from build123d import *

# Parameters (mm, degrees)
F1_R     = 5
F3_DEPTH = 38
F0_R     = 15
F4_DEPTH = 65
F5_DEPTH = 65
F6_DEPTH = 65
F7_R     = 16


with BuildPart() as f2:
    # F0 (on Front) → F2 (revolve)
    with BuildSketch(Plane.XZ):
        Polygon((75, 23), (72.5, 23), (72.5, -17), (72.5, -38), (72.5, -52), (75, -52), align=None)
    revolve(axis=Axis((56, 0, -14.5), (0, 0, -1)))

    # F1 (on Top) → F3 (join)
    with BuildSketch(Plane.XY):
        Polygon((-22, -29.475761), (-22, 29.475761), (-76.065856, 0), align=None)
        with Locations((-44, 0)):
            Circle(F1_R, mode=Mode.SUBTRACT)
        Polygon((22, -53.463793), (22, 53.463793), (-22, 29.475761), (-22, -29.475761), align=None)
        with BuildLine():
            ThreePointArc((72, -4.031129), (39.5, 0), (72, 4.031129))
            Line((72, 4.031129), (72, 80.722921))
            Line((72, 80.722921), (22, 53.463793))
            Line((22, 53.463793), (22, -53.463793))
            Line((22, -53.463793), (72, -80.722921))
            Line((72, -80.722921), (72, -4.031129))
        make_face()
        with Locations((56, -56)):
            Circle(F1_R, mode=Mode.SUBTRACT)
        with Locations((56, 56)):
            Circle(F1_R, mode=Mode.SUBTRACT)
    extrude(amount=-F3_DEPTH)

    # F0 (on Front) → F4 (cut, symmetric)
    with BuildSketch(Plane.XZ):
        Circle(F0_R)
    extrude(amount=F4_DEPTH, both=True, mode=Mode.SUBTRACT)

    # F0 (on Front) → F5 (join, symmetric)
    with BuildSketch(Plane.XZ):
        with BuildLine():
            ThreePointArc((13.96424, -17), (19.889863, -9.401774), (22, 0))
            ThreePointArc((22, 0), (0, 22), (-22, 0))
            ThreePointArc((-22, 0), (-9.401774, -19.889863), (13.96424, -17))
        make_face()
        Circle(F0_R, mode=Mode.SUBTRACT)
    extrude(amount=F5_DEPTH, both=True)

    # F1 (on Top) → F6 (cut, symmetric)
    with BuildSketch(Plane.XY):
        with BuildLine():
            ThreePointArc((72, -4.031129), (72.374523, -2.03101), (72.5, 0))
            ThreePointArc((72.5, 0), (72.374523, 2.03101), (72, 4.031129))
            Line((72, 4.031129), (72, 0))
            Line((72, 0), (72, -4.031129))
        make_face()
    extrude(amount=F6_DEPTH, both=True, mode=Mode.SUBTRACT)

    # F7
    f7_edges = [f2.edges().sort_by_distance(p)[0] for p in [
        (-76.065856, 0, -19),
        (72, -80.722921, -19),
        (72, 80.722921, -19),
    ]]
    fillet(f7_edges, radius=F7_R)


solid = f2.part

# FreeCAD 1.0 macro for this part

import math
import FreeCAD as App
import Part
import Sketcher

V = App.Vector
Q = App.Units.Quantity


def edges_at(feature, points):
    """Names of the edges that pass closest to the given points."""
    edges = feature.Shape.Edges
    near = lambda p: min(range(len(edges)), key=lambda i: edges[i].distToShape(Part.Vertex(*p))[0])
    return sorted({f"Edge{near(p) + 1}" for p in points})

doc = App.newDocument("Part")
body = doc.addObject("PartDesign::Body", "Body")

# Sketch on XZ plane
sketch1 = body.newObject("Sketcher::SketchObject", "Sketch")
sketch1.AttachmentSupport = (doc.getObject("XZ_Plane"), [""])
sketch1.MapMode = "FlatFace"
sketch1.addGeometry(Part.LineSegment(V(75, 23, 0), V(72.5, 23, 0)), False)
sketch1.addGeometry(Part.LineSegment(V(72.5, 23, 0), V(72.5, -52, 0)), False)
sketch1.addGeometry(Part.LineSegment(V(72.5, -52, 0), V(75, -52, 0)), False)
sketch1.addGeometry(Part.LineSegment(V(75, -52, 0), V(75, 23, 0)), False)
sketch1.addGeometry(Part.LineSegment(V(56, 23, 0), V(56, -52, 0)), True)  # axis
sketch1.addConstraint(Sketcher.Constraint("Coincident", 0, 2, 1, 1))
sketch1.addConstraint(Sketcher.Constraint("Coincident", 1, 2, 2, 1))
sketch1.addConstraint(Sketcher.Constraint("Coincident", 2, 2, 3, 1))
sketch1.addConstraint(Sketcher.Constraint("Coincident", 3, 2, 0, 1))
sketch1.addConstraint(Sketcher.Constraint("Horizontal", 0))
sketch1.addConstraint(Sketcher.Constraint("Vertical", 1))
sketch1.addConstraint(Sketcher.Constraint("Horizontal", 2))
sketch1.addConstraint(Sketcher.Constraint("Vertical", 3))
sketch1.addConstraint(Sketcher.Constraint("Vertical", 4))
sketch1.addConstraint(Sketcher.Constraint("Horizontal", 3, 2, 4, 1))
sketch1.addConstraint(Sketcher.Constraint("Horizontal", 2, 2, 4, 2))
sketch1.addConstraint(Sketcher.Constraint("DistanceY", 1, 2, 1, 1, Q("75 mm")))
sketch1.addConstraint(Sketcher.Constraint("DistanceX", 0, 2, 0, 1, Q("2.5 mm")))
sketch1.addConstraint(Sketcher.Constraint("DistanceY", -1, 1, 0, 2, Q("23 mm")))
sketch1.addConstraint(Sketcher.Constraint("DistanceX", -1, 1, 2, 2, Q("75 mm")))
sketch1.addConstraint(Sketcher.Constraint("DistanceX", -1, 1, 4, 1, Q("56 mm")))
revolution = body.newObject("PartDesign::Revolution", "Revolution")
revolution.Profile = sketch1
revolution.ReferenceAxis = (sketch1, ["Axis0"])
revolution.Angle = 360

# Sketch on XY plane
sketch2 = body.newObject("Sketcher::SketchObject", "Sketch001")
sketch2.AttachmentSupport = (doc.getObject("XY_Plane"), [""])
sketch2.MapMode = "FlatFace"
sketch2.addGeometry(Part.LineSegment(V(-76, 0, 0), V(-22, -29, 0)), False)
sketch2.addGeometry(Part.LineSegment(V(-22, -29, 0), V(22, -53, 0)), False)
sketch2.addGeometry(Part.LineSegment(V(22, -53, 0), V(72, -81, 0)), False)
sketch2.addGeometry(Part.LineSegment(V(72, -81, 0), V(72, -4, 0)), False)
sketch2.addGeometry(Part.ArcOfCircle(Part.Circle(V(56, 0, 0), V(0, 0, 1), 17), math.radians(14), math.radians(346)), False)
sketch2.addGeometry(Part.LineSegment(V(72, 4, 0), V(72, 81, 0)), False)
sketch2.addGeometry(Part.LineSegment(V(72, 81, 0), V(22, 53, 0)), False)
sketch2.addGeometry(Part.LineSegment(V(22, 53, 0), V(-22, 29, 0)), False)
sketch2.addGeometry(Part.LineSegment(V(-22, 29, 0), V(-76, 0, 0)), False)
sketch2.addGeometry(Part.Circle(V(56, -56, 0), V(0, 0, 1), 5), False)
sketch2.addGeometry(Part.Circle(V(-44, 0, 0), V(0, 0, 1), 5), False)
sketch2.addGeometry(Part.Circle(V(56, 56, 0), V(0, 0, 1), 5), False)
sketch2.addConstraint(Sketcher.Constraint("Coincident", 0, 2, 1, 1))
sketch2.addConstraint(Sketcher.Constraint("Coincident", 1, 2, 2, 1))
sketch2.addConstraint(Sketcher.Constraint("Coincident", 2, 2, 3, 1))
sketch2.addConstraint(Sketcher.Constraint("Coincident", 3, 2, 4, 2))
sketch2.addConstraint(Sketcher.Constraint("Coincident", 4, 1, 5, 1))
sketch2.addConstraint(Sketcher.Constraint("Coincident", 5, 2, 6, 1))
sketch2.addConstraint(Sketcher.Constraint("Coincident", 6, 2, 7, 1))
sketch2.addConstraint(Sketcher.Constraint("Coincident", 7, 2, 8, 1))
sketch2.addConstraint(Sketcher.Constraint("Coincident", 8, 2, 0, 1))
sketch2.addConstraint(Sketcher.Constraint("Vertical", 3))
sketch2.addConstraint(Sketcher.Constraint("Vertical", 5))
sketch2.addConstraint(Sketcher.Constraint("Equal", 9, 10))
sketch2.addConstraint(Sketcher.Constraint("Equal", 10, 11))
sketch2.addConstraint(Sketcher.Constraint("Symmetric", 9, 3, 11, 3, -1))
sketch2.addConstraint(Sketcher.Constraint("Symmetric", 3, 2, 4, 1, -1))
sketch2.addConstraint(Sketcher.Constraint("Symmetric", 1, 2, 6, 2, -1))
sketch2.addConstraint(Sketcher.Constraint("Symmetric", 0, 2, 7, 2, -1))
sketch2.addConstraint(Sketcher.Constraint("PointOnObject", 10, 3, -1))
sketch2.addConstraint(Sketcher.Constraint("PointOnObject", 8, 2, -1))
sketch2.addConstraint(Sketcher.Constraint("Parallel", 0, 1))
sketch2.addConstraint(Sketcher.Constraint("Parallel", 1, 2))
sketch2.addConstraint(Sketcher.Constraint("Parallel", 6, 7))
sketch2.addConstraint(Sketcher.Constraint("Vertical", 4, 3, 9, 3))
sketch2.addConstraint(Sketcher.Constraint("Diameter", 9, Q("10 mm")))
sketch2.addConstraint(Sketcher.Constraint("Radius", 4, Q("16.5 mm")))
sketch2.addConstraint(Sketcher.Constraint("DistanceX", -1, 1, 4, 3, Q("56 mm")))
sketch2.addConstraint(Sketcher.Constraint("DistanceY", 9, 3, -1, 1, Q("56 mm")))
sketch2.addConstraint(Sketcher.Constraint("DistanceX", 10, 3, -1, 1, Q("44 mm")))
sketch2.addConstraint(Sketcher.Constraint("DistanceX", 0, 2, -1, 1, Q("22 mm")))
sketch2.addConstraint(Sketcher.Constraint("DistanceX", -1, 1, 1, 2, Q("22 mm")))
sketch2.addConstraint(Sketcher.Constraint("DistanceX", -1, 1, 2, 2, Q("72 mm")))
sketch2.addConstraint(Sketcher.Constraint("DistanceY", 3, 1, 3, 2, Q("76.691792 mm")))
sketch2.addConstraint(Sketcher.Constraint("Distance", 2, Q("56.947871 mm")))
pad1 = body.newObject("PartDesign::Pad", "Pad")
pad1.Profile = sketch2
pad1.Length = 38
pad1.Reversed = True

# Sketch on XZ plane
sketch3 = body.newObject("Sketcher::SketchObject", "Sketch002")
sketch3.AttachmentSupport = (doc.getObject("XZ_Plane"), [""])
sketch3.MapMode = "FlatFace"
sketch3.addGeometry(Part.Circle(V(0, 0, 0), V(0, 0, 1), 15), False)
sketch3.addConstraint(Sketcher.Constraint("Coincident", 0, 3, -1, 1))
sketch3.addConstraint(Sketcher.Constraint("Diameter", 0, Q("30 mm")))
pocket1 = body.newObject("PartDesign::Pocket", "Pocket")
pocket1.Profile = sketch3
pocket1.Length = 130
pocket1.Midplane = True

# Sketch on XZ plane
sketch4 = body.newObject("Sketcher::SketchObject", "Sketch003")
sketch4.AttachmentSupport = (doc.getObject("XZ_Plane"), [""])
sketch4.MapMode = "FlatFace"
sketch4.addGeometry(Part.ArcOfCircle(Part.Circle(V(0, 0, 0), V(0, 0, 1), 22), math.radians(-51), math.radians(0)), False)
sketch4.addGeometry(Part.ArcOfCircle(Part.Circle(V(0, 0, 0), V(0, 0, 1), 22), math.radians(0), math.radians(180)), False)
sketch4.addGeometry(Part.ArcOfCircle(Part.Circle(V(0, 0, 0), V(0, 0, 1), 22), math.radians(180), math.radians(309)), False)
sketch4.addGeometry(Part.Circle(V(0, 0, 0), V(0, 0, 1), 15), False)
sketch4.addConstraint(Sketcher.Constraint("Tangent", 0, 2, 1, 1))
sketch4.addConstraint(Sketcher.Constraint("Tangent", 1, 2, 2, 1))
sketch4.addConstraint(Sketcher.Constraint("Tangent", 2, 2, 0, 1))
sketch4.addConstraint(Sketcher.Constraint("Coincident", 0, 3, -1, 1))
sketch4.addConstraint(Sketcher.Constraint("Coincident", 3, 3, -1, 1))
sketch4.addConstraint(Sketcher.Constraint("PointOnObject", 0, 2, -1))
sketch4.addConstraint(Sketcher.Constraint("PointOnObject", 1, 2, -1))
sketch4.addConstraint(Sketcher.Constraint("Diameter", 3, Q("30 mm")))
sketch4.addConstraint(Sketcher.Constraint("Radius", 0, Q("21.999999 mm")))
sketch4.addConstraint(Sketcher.Constraint("DistanceY", 2, 2, -1, 1, Q("17 mm")))
pad2 = body.newObject("PartDesign::Pad", "Pad001")
pad2.Profile = sketch4
pad2.Length = 130
pad2.Midplane = True

# Sketch on XY plane
sketch5 = body.newObject("Sketcher::SketchObject", "Sketch004")
sketch5.AttachmentSupport = (doc.getObject("XY_Plane"), [""])
sketch5.MapMode = "FlatFace"
sketch5.addGeometry(Part.ArcOfCircle(Part.Circle(V(56, 0, 0), V(0, 0, 1), 16.5), math.radians(-14.14), math.radians(0)), False)
sketch5.addGeometry(Part.ArcOfCircle(Part.Circle(V(56, 0, 0), V(0, 0, 1), 16.5), math.radians(0), math.radians(14.14)), False)
sketch5.addGeometry(Part.LineSegment(V(72, 4, 0), V(72, -4, 0)), False)
sketch5.addConstraint(Sketcher.Constraint("Tangent", 0, 2, 1, 1))
sketch5.addConstraint(Sketcher.Constraint("Coincident", 1, 2, 2, 1))
sketch5.addConstraint(Sketcher.Constraint("Coincident", 2, 2, 0, 1))
sketch5.addConstraint(Sketcher.Constraint("Vertical", 2))
sketch5.addConstraint(Sketcher.Constraint("Equal", 0, 1))
sketch5.addConstraint(Sketcher.Constraint("PointOnObject", 0, 2, -1))
sketch5.addConstraint(Sketcher.Constraint("DistanceX", -1, 1, 1, 2, Q("72 mm")))
sketch5.addConstraint(Sketcher.Constraint("DistanceX", -1, 1, 0, 2, Q("72.5 mm")))
sketch5.addConstraint(Sketcher.Constraint("Radius", 0, Q("16.499982 mm")))
sketch5.addConstraint(Sketcher.Constraint("DistanceY", -1, 1, 1, 2, Q("4.031129 mm")))
pocket2 = body.newObject("PartDesign::Pocket", "Pocket001")
pocket2.Profile = sketch5
pocket2.Length = 130
pocket2.Midplane = True
doc.recompute()

fillet = body.newObject("PartDesign::Fillet", "Fillet")
fillet.Base = (pocket2, edges_at(pocket2, [(-76.066, 0, -19), (72, -80.723, -19), (72, 80.723, -19)]))
fillet.Radius = 16

doc.recompute()
